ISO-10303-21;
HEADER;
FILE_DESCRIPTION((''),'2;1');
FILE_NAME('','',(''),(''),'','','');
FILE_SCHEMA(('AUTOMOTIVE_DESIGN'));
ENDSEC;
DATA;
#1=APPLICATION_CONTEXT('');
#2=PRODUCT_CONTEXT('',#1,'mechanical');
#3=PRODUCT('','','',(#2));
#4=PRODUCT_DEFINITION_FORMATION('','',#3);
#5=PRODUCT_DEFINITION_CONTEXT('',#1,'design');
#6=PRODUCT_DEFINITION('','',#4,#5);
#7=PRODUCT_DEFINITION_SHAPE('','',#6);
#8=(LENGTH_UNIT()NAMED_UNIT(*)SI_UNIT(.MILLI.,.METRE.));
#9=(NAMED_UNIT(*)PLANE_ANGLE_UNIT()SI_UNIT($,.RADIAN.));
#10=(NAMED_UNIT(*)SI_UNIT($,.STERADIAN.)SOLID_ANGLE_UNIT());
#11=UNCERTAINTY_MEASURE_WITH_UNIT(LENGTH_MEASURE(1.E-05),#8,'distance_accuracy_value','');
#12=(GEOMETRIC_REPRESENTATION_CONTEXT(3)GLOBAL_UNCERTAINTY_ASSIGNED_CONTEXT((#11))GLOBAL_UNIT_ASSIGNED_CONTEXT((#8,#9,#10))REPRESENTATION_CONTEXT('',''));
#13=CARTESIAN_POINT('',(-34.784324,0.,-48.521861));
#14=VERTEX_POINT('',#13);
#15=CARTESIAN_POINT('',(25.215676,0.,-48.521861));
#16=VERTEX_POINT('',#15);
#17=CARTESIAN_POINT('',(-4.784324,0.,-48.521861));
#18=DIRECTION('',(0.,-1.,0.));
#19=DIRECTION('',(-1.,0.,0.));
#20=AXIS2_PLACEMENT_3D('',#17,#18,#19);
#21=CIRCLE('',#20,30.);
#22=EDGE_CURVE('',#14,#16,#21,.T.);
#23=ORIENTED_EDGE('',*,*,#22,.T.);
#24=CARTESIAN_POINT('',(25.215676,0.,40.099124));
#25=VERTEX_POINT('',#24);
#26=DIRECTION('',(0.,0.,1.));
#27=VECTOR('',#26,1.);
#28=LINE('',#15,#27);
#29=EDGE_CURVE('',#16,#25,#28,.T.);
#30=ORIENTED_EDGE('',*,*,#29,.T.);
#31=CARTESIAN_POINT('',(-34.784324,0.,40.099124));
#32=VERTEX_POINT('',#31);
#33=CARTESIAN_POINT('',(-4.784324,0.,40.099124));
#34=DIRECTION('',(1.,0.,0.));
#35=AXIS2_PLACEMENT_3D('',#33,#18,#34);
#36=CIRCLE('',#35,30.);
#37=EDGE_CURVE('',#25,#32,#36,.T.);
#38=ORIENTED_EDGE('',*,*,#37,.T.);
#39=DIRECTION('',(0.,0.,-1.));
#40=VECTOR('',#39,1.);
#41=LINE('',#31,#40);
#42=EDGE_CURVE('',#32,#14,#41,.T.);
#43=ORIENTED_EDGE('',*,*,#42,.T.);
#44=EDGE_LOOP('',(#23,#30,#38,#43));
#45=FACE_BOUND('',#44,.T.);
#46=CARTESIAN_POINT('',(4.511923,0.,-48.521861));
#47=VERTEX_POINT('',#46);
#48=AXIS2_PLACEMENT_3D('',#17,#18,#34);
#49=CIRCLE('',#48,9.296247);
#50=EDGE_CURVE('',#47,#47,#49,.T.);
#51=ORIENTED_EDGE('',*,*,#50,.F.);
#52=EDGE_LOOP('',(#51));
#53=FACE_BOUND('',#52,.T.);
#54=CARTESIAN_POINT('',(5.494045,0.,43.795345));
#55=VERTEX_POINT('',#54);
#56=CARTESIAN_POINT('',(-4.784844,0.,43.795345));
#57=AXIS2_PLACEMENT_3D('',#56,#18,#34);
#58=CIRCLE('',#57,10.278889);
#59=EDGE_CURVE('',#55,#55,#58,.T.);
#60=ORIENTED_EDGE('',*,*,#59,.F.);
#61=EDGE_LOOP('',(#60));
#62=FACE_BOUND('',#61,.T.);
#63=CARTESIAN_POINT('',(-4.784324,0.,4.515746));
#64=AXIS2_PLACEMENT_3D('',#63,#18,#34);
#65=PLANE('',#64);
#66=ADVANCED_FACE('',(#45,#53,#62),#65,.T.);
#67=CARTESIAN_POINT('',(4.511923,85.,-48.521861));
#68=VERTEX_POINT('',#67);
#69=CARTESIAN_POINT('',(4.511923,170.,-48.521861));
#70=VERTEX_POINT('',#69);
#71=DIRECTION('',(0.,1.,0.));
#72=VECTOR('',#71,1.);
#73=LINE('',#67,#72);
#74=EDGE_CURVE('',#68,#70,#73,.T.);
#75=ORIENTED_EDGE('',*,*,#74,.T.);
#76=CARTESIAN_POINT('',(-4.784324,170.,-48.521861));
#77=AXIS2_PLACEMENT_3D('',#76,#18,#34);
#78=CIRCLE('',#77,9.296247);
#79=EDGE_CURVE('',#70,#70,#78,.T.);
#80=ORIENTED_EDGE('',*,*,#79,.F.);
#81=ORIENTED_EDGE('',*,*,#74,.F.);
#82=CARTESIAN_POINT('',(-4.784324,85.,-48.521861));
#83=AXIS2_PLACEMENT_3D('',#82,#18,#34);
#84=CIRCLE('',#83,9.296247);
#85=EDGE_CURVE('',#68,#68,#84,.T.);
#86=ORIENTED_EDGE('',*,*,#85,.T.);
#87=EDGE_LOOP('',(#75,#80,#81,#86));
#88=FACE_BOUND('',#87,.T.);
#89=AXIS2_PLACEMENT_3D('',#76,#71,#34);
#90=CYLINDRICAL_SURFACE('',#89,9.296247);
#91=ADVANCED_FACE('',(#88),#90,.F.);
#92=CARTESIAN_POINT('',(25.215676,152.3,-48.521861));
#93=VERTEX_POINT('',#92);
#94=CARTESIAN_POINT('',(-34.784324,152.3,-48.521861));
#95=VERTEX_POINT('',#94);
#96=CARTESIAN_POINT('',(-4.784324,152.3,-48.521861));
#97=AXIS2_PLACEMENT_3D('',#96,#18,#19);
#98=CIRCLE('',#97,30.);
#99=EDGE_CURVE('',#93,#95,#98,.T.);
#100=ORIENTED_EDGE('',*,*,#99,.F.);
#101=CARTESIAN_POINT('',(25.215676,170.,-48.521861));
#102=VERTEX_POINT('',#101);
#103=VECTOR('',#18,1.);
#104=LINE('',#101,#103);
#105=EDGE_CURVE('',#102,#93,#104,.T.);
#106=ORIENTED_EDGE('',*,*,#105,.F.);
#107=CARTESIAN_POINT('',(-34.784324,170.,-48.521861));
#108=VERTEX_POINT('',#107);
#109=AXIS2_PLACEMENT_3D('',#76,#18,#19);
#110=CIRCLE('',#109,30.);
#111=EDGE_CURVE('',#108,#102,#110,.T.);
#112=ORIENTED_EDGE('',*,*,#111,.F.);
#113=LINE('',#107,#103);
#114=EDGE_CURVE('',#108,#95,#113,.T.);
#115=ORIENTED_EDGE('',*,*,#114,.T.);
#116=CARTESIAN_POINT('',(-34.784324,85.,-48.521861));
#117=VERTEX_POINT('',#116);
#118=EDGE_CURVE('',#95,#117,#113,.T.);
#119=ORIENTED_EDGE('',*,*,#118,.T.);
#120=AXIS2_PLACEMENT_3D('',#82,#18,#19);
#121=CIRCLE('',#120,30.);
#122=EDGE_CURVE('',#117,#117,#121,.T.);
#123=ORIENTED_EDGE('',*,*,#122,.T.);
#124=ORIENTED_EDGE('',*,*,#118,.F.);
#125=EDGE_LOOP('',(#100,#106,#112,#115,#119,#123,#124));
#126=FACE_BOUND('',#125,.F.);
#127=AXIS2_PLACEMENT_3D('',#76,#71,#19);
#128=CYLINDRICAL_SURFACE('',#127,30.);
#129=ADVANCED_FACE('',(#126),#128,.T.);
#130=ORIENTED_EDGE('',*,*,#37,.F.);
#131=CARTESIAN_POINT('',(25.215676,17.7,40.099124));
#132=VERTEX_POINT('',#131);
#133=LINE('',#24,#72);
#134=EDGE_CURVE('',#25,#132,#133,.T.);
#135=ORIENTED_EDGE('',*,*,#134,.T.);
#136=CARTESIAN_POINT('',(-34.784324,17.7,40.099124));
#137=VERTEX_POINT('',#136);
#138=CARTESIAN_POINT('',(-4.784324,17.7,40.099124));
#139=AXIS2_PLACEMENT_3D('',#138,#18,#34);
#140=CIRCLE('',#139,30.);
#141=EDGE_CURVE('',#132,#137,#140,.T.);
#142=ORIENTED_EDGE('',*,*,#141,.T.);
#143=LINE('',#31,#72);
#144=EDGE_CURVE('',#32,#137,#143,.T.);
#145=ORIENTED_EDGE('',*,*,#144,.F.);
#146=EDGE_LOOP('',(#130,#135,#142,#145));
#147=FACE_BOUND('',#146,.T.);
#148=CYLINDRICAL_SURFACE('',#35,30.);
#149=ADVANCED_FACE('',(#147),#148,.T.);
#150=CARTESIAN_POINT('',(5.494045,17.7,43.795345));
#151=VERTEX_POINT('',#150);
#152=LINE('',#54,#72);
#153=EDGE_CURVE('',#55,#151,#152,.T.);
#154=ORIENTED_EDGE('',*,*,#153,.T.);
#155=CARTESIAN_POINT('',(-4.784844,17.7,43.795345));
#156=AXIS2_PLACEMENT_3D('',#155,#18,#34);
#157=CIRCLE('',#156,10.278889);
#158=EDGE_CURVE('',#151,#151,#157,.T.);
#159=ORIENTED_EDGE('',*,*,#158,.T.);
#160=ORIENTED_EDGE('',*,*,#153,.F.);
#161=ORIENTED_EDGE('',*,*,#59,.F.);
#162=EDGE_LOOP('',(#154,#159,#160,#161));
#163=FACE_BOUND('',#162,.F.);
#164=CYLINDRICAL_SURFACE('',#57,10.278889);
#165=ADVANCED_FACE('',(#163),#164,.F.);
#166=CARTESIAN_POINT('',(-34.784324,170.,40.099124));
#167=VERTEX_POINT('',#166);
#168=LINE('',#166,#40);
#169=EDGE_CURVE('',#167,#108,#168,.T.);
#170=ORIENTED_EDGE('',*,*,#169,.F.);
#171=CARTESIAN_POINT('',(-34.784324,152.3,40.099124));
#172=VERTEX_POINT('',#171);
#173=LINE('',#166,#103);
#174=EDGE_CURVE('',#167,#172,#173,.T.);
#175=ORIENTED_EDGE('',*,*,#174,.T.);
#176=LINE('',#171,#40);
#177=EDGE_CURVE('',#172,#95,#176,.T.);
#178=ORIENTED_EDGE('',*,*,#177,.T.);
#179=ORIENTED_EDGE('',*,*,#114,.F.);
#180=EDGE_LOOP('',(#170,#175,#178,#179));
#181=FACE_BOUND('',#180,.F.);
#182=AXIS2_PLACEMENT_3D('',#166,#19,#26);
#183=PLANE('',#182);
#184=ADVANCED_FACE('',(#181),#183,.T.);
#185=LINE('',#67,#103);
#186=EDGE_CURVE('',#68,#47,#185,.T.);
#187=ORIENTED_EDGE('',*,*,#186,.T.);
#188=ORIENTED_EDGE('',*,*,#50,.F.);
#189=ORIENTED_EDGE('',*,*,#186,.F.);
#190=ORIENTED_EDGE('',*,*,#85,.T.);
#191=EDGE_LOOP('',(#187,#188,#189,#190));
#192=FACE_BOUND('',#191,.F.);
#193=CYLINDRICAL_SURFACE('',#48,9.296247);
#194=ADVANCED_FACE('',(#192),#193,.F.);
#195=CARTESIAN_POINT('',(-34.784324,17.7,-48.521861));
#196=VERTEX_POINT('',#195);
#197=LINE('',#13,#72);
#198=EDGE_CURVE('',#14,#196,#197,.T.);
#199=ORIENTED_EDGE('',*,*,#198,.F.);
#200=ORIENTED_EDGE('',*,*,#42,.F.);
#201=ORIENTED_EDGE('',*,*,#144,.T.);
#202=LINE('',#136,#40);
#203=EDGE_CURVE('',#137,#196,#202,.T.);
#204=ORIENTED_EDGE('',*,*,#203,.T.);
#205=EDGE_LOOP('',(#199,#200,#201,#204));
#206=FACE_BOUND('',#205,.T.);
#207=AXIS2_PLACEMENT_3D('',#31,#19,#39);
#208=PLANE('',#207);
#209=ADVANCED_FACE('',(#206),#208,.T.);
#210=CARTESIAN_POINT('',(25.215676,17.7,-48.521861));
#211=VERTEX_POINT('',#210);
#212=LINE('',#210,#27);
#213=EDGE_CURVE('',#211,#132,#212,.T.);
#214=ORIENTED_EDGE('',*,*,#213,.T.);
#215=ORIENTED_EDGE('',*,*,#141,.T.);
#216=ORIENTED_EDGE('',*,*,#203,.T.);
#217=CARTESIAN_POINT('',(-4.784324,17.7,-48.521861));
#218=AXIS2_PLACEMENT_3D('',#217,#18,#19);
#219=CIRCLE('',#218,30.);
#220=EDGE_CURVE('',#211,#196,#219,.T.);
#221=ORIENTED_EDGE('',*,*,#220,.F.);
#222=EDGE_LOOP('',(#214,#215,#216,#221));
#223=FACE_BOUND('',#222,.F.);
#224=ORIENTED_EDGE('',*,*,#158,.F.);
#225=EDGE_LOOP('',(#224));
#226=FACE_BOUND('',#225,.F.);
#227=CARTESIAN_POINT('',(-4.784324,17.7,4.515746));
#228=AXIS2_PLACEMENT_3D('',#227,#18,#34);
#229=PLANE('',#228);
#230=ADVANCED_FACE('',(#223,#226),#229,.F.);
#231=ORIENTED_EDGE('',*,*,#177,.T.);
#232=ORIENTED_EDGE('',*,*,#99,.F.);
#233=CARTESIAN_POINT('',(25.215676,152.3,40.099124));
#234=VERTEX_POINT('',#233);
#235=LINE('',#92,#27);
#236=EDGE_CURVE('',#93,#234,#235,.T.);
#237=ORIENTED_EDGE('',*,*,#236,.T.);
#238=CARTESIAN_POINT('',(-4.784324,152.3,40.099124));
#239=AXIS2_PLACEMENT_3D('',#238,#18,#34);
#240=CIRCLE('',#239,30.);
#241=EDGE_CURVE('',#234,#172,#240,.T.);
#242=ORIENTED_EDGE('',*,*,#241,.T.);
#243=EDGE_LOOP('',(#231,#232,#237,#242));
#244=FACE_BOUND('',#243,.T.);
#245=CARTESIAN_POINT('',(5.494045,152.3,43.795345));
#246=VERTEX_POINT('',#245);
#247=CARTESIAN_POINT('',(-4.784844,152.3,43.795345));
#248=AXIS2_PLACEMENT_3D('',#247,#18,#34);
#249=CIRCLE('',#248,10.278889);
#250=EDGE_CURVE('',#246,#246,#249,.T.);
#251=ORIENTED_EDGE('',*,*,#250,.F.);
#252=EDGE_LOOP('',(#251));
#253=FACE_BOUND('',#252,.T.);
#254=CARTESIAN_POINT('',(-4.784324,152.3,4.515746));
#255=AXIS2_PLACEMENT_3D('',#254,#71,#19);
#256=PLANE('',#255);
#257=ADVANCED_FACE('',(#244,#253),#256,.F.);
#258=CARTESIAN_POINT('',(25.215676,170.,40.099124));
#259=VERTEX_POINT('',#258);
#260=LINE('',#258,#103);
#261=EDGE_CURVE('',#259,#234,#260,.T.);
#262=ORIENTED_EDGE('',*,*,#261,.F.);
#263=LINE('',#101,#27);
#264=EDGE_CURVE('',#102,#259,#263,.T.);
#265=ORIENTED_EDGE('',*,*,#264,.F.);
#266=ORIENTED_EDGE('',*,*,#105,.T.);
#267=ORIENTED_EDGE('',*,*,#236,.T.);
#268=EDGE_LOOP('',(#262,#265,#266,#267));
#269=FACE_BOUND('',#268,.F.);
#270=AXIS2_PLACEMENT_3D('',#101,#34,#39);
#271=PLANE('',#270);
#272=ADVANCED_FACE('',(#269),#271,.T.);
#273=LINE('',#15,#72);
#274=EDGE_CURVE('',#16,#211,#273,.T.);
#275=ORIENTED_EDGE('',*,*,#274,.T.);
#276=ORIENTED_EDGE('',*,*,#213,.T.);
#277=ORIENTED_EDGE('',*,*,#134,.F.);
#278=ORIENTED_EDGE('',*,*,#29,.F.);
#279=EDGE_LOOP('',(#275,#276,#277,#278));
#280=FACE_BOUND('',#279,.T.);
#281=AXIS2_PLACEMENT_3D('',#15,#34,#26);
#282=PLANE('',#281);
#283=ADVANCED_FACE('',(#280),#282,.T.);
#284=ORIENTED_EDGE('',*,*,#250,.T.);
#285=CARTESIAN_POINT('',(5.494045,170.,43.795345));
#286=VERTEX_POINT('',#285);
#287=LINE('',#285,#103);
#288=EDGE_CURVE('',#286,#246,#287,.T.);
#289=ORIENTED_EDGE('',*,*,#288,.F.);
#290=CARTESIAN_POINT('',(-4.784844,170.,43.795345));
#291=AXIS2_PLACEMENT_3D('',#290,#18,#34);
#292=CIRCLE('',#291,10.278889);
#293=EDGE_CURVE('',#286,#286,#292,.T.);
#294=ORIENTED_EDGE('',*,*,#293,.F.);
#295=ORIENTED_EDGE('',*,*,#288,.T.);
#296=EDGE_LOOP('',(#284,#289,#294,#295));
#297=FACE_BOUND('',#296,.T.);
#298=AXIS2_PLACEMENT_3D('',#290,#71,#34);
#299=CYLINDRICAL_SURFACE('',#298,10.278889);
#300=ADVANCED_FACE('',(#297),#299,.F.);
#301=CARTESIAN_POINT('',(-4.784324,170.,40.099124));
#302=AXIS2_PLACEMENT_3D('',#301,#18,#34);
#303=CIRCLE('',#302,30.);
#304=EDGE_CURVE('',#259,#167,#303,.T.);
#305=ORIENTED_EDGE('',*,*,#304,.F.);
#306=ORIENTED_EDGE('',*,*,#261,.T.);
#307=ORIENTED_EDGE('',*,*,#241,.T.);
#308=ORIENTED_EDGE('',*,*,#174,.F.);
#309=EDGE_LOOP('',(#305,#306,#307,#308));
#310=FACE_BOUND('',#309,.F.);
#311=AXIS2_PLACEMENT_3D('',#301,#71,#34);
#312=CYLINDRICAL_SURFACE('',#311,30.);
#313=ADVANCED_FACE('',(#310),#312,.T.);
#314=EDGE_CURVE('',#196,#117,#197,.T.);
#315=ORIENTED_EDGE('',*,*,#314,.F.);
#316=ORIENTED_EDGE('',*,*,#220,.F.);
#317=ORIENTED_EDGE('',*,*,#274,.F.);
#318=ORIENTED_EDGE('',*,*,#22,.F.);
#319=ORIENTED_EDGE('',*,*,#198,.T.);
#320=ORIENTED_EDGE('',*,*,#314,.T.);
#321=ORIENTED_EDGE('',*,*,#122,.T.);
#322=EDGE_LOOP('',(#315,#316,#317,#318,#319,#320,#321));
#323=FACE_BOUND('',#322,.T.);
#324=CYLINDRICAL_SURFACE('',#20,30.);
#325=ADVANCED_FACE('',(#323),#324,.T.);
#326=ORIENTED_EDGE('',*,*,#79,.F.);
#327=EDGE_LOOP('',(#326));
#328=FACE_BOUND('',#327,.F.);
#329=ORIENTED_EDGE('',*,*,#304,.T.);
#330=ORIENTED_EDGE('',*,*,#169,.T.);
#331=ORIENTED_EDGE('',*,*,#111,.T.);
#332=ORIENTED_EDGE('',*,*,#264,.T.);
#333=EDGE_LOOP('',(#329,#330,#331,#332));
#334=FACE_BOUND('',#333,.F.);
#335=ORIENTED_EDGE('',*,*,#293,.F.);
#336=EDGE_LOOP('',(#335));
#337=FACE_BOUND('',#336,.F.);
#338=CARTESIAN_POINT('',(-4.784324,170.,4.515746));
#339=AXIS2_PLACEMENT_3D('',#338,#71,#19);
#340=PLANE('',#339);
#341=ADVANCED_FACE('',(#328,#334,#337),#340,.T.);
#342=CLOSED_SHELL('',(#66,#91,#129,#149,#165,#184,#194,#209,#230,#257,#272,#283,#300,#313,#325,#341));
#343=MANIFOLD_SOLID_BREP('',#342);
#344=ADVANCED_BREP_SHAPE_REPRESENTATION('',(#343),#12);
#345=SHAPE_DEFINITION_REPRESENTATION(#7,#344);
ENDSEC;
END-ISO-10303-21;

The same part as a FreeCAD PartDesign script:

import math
import FreeCAD as App
import Part
import Sketcher
from FreeCAD import Vector

doc = App.newDocument("Part")
params = doc.addObject("Spreadsheet::Sheet", "Params")
for row, (alias, value) in enumerate([
    ("sketch1_diameter", "60 mm"),
    ("pad1_length", "85 mm"),
    ("sketch2_radius", "30 mm"),
    ("pad2_length", "17.7 mm"),
], start=1):
    params.set(f"A{row}", alias)
    params.set(f"B{row}", "=" + value)
    params.setAlias(f"B{row}", alias)

body = doc.addObject("PartDesign::Body", "Body")

sketch1 = doc.addObject("Sketcher::SketchObject", "Sketch")
body.addObject(sketch1)
sketch1.AttachmentSupport = (doc.XZ_Plane, [""])
sketch1.MapMode = "FlatFace"
sketch1.addGeometry([
    Part.Circle(Vector(-5, -49, 0), Vector(0, 0, 1), 30),
    Part.Circle(Vector(-5, -49, 0), Vector(0, 0, 1), 9),
], False)
sketch1.addConstraint([
    Sketcher.Constraint("Coincident", 1, 3, 0, 3),
    Sketcher.Constraint("Diameter", 0, 60.0),
    Sketcher.Constraint("Diameter", 1, 18.592494),
    Sketcher.Constraint("DistanceY", 0, 3, -1, 1, 48.521861),
    Sketcher.Constraint("DistanceX", 0, 3, -1, 1, 4.784324),
])
sketch1.setExpression("Constraints[1]", "Params.sketch1_diameter")
pad1 = doc.addObject("PartDesign::Pad", "Pad")
body.addObject(pad1)
pad1.Profile = sketch1
pad1.setExpression("Length", "Params.pad1_length")
pad1.Reversed = True

sketch2 = doc.addObject("Sketcher::SketchObject", "Sketch001")
body.addObject(sketch2)
sketch2.AttachmentSupport = (doc.XZ_Plane, [""])
sketch2.MapMode = "FlatFace"
sketch2.addGeometry([
    Part.ArcOfCircle(Part.Circle(Vector(-5, 40, 0), Vector(0, 0, 1), 30), math.radians(0), math.radians(180)),
    Part.LineSegment(Vector(-35, 40, 0), Vector(-35, -49, 0)),
    Part.ArcOfCircle(Part.Circle(Vector(-5, -49, 0), Vector(0, 0, 1), 30), math.radians(180), math.radians(360)),
    Part.LineSegment(Vector(25, -49, 0), Vector(25, 40, 0)),
    Part.Circle(Vector(-5, -49, 0), Vector(0, 0, 1), 9),
    Part.Circle(Vector(-5, 44, 0), Vector(0, 0, 1), 10),
], False)
sketch2.addConstraint([
    Sketcher.Constraint("Tangent", 0, 2, 1, 1),
    Sketcher.Constraint("Tangent", 1, 2, 2, 1),
    Sketcher.Constraint("Tangent", 2, 2, 3, 1),
    Sketcher.Constraint("Tangent", 3, 2, 0, 1),
    Sketcher.Constraint("Vertical", 1),
    Sketcher.Constraint("Vertical", 3),
    Sketcher.Constraint("Coincident", 4, 3, 2, 3),
    Sketcher.Constraint("Radius", 0, 30.0),
    Sketcher.Constraint("Diameter", 4, 18.592494),
    Sketcher.Constraint("Diameter", 5, 20.557778),
    Sketcher.Constraint("DistanceY", 1, 2, 1, 1, 88.620985),
    Sketcher.Constraint("DistanceY", 2, 3, -1, 1, 48.521861),
    Sketcher.Constraint("DistanceX", 5, 3, 0, 3, 0.00052),
    Sketcher.Constraint("DistanceY", 0, 3, 5, 3, 3.696221),
    Sketcher.Constraint("DistanceX", 0, 3, -1, 1, 4.784324),
])
sketch2.setExpression("Constraints[7]", "Params.sketch2_radius")
pad2 = doc.addObject("PartDesign::Pad", "Pad001")
body.addObject(pad2)
pad2.Profile = sketch2
pad2.setExpression("Length", "Params.pad2_length")
pad2.Reversed = True
body2 = doc.addObject("PartDesign::Body", "Body001")
doc.recompute()

body2.BaseFeature = body
doc.recompute()

mirroring = doc.addObject("Part::Mirroring", "Mirroring")
mirroring.Source = body
mirroring.Base = Vector(0, 85, 0)
mirroring.Normal = Vector(0, -1, 0)
body3 = doc.addObject("PartDesign::Body", "Body002")
body3.BaseFeature = mirroring
boolean = doc.addObject("PartDesign::Boolean", "Boolean")
body2.addObject(boolean)
boolean.Type = "Fuse"
boolean.addObjects([body3])
doc.recompute()
mirroring.Visibility = False

doc.recompute()
